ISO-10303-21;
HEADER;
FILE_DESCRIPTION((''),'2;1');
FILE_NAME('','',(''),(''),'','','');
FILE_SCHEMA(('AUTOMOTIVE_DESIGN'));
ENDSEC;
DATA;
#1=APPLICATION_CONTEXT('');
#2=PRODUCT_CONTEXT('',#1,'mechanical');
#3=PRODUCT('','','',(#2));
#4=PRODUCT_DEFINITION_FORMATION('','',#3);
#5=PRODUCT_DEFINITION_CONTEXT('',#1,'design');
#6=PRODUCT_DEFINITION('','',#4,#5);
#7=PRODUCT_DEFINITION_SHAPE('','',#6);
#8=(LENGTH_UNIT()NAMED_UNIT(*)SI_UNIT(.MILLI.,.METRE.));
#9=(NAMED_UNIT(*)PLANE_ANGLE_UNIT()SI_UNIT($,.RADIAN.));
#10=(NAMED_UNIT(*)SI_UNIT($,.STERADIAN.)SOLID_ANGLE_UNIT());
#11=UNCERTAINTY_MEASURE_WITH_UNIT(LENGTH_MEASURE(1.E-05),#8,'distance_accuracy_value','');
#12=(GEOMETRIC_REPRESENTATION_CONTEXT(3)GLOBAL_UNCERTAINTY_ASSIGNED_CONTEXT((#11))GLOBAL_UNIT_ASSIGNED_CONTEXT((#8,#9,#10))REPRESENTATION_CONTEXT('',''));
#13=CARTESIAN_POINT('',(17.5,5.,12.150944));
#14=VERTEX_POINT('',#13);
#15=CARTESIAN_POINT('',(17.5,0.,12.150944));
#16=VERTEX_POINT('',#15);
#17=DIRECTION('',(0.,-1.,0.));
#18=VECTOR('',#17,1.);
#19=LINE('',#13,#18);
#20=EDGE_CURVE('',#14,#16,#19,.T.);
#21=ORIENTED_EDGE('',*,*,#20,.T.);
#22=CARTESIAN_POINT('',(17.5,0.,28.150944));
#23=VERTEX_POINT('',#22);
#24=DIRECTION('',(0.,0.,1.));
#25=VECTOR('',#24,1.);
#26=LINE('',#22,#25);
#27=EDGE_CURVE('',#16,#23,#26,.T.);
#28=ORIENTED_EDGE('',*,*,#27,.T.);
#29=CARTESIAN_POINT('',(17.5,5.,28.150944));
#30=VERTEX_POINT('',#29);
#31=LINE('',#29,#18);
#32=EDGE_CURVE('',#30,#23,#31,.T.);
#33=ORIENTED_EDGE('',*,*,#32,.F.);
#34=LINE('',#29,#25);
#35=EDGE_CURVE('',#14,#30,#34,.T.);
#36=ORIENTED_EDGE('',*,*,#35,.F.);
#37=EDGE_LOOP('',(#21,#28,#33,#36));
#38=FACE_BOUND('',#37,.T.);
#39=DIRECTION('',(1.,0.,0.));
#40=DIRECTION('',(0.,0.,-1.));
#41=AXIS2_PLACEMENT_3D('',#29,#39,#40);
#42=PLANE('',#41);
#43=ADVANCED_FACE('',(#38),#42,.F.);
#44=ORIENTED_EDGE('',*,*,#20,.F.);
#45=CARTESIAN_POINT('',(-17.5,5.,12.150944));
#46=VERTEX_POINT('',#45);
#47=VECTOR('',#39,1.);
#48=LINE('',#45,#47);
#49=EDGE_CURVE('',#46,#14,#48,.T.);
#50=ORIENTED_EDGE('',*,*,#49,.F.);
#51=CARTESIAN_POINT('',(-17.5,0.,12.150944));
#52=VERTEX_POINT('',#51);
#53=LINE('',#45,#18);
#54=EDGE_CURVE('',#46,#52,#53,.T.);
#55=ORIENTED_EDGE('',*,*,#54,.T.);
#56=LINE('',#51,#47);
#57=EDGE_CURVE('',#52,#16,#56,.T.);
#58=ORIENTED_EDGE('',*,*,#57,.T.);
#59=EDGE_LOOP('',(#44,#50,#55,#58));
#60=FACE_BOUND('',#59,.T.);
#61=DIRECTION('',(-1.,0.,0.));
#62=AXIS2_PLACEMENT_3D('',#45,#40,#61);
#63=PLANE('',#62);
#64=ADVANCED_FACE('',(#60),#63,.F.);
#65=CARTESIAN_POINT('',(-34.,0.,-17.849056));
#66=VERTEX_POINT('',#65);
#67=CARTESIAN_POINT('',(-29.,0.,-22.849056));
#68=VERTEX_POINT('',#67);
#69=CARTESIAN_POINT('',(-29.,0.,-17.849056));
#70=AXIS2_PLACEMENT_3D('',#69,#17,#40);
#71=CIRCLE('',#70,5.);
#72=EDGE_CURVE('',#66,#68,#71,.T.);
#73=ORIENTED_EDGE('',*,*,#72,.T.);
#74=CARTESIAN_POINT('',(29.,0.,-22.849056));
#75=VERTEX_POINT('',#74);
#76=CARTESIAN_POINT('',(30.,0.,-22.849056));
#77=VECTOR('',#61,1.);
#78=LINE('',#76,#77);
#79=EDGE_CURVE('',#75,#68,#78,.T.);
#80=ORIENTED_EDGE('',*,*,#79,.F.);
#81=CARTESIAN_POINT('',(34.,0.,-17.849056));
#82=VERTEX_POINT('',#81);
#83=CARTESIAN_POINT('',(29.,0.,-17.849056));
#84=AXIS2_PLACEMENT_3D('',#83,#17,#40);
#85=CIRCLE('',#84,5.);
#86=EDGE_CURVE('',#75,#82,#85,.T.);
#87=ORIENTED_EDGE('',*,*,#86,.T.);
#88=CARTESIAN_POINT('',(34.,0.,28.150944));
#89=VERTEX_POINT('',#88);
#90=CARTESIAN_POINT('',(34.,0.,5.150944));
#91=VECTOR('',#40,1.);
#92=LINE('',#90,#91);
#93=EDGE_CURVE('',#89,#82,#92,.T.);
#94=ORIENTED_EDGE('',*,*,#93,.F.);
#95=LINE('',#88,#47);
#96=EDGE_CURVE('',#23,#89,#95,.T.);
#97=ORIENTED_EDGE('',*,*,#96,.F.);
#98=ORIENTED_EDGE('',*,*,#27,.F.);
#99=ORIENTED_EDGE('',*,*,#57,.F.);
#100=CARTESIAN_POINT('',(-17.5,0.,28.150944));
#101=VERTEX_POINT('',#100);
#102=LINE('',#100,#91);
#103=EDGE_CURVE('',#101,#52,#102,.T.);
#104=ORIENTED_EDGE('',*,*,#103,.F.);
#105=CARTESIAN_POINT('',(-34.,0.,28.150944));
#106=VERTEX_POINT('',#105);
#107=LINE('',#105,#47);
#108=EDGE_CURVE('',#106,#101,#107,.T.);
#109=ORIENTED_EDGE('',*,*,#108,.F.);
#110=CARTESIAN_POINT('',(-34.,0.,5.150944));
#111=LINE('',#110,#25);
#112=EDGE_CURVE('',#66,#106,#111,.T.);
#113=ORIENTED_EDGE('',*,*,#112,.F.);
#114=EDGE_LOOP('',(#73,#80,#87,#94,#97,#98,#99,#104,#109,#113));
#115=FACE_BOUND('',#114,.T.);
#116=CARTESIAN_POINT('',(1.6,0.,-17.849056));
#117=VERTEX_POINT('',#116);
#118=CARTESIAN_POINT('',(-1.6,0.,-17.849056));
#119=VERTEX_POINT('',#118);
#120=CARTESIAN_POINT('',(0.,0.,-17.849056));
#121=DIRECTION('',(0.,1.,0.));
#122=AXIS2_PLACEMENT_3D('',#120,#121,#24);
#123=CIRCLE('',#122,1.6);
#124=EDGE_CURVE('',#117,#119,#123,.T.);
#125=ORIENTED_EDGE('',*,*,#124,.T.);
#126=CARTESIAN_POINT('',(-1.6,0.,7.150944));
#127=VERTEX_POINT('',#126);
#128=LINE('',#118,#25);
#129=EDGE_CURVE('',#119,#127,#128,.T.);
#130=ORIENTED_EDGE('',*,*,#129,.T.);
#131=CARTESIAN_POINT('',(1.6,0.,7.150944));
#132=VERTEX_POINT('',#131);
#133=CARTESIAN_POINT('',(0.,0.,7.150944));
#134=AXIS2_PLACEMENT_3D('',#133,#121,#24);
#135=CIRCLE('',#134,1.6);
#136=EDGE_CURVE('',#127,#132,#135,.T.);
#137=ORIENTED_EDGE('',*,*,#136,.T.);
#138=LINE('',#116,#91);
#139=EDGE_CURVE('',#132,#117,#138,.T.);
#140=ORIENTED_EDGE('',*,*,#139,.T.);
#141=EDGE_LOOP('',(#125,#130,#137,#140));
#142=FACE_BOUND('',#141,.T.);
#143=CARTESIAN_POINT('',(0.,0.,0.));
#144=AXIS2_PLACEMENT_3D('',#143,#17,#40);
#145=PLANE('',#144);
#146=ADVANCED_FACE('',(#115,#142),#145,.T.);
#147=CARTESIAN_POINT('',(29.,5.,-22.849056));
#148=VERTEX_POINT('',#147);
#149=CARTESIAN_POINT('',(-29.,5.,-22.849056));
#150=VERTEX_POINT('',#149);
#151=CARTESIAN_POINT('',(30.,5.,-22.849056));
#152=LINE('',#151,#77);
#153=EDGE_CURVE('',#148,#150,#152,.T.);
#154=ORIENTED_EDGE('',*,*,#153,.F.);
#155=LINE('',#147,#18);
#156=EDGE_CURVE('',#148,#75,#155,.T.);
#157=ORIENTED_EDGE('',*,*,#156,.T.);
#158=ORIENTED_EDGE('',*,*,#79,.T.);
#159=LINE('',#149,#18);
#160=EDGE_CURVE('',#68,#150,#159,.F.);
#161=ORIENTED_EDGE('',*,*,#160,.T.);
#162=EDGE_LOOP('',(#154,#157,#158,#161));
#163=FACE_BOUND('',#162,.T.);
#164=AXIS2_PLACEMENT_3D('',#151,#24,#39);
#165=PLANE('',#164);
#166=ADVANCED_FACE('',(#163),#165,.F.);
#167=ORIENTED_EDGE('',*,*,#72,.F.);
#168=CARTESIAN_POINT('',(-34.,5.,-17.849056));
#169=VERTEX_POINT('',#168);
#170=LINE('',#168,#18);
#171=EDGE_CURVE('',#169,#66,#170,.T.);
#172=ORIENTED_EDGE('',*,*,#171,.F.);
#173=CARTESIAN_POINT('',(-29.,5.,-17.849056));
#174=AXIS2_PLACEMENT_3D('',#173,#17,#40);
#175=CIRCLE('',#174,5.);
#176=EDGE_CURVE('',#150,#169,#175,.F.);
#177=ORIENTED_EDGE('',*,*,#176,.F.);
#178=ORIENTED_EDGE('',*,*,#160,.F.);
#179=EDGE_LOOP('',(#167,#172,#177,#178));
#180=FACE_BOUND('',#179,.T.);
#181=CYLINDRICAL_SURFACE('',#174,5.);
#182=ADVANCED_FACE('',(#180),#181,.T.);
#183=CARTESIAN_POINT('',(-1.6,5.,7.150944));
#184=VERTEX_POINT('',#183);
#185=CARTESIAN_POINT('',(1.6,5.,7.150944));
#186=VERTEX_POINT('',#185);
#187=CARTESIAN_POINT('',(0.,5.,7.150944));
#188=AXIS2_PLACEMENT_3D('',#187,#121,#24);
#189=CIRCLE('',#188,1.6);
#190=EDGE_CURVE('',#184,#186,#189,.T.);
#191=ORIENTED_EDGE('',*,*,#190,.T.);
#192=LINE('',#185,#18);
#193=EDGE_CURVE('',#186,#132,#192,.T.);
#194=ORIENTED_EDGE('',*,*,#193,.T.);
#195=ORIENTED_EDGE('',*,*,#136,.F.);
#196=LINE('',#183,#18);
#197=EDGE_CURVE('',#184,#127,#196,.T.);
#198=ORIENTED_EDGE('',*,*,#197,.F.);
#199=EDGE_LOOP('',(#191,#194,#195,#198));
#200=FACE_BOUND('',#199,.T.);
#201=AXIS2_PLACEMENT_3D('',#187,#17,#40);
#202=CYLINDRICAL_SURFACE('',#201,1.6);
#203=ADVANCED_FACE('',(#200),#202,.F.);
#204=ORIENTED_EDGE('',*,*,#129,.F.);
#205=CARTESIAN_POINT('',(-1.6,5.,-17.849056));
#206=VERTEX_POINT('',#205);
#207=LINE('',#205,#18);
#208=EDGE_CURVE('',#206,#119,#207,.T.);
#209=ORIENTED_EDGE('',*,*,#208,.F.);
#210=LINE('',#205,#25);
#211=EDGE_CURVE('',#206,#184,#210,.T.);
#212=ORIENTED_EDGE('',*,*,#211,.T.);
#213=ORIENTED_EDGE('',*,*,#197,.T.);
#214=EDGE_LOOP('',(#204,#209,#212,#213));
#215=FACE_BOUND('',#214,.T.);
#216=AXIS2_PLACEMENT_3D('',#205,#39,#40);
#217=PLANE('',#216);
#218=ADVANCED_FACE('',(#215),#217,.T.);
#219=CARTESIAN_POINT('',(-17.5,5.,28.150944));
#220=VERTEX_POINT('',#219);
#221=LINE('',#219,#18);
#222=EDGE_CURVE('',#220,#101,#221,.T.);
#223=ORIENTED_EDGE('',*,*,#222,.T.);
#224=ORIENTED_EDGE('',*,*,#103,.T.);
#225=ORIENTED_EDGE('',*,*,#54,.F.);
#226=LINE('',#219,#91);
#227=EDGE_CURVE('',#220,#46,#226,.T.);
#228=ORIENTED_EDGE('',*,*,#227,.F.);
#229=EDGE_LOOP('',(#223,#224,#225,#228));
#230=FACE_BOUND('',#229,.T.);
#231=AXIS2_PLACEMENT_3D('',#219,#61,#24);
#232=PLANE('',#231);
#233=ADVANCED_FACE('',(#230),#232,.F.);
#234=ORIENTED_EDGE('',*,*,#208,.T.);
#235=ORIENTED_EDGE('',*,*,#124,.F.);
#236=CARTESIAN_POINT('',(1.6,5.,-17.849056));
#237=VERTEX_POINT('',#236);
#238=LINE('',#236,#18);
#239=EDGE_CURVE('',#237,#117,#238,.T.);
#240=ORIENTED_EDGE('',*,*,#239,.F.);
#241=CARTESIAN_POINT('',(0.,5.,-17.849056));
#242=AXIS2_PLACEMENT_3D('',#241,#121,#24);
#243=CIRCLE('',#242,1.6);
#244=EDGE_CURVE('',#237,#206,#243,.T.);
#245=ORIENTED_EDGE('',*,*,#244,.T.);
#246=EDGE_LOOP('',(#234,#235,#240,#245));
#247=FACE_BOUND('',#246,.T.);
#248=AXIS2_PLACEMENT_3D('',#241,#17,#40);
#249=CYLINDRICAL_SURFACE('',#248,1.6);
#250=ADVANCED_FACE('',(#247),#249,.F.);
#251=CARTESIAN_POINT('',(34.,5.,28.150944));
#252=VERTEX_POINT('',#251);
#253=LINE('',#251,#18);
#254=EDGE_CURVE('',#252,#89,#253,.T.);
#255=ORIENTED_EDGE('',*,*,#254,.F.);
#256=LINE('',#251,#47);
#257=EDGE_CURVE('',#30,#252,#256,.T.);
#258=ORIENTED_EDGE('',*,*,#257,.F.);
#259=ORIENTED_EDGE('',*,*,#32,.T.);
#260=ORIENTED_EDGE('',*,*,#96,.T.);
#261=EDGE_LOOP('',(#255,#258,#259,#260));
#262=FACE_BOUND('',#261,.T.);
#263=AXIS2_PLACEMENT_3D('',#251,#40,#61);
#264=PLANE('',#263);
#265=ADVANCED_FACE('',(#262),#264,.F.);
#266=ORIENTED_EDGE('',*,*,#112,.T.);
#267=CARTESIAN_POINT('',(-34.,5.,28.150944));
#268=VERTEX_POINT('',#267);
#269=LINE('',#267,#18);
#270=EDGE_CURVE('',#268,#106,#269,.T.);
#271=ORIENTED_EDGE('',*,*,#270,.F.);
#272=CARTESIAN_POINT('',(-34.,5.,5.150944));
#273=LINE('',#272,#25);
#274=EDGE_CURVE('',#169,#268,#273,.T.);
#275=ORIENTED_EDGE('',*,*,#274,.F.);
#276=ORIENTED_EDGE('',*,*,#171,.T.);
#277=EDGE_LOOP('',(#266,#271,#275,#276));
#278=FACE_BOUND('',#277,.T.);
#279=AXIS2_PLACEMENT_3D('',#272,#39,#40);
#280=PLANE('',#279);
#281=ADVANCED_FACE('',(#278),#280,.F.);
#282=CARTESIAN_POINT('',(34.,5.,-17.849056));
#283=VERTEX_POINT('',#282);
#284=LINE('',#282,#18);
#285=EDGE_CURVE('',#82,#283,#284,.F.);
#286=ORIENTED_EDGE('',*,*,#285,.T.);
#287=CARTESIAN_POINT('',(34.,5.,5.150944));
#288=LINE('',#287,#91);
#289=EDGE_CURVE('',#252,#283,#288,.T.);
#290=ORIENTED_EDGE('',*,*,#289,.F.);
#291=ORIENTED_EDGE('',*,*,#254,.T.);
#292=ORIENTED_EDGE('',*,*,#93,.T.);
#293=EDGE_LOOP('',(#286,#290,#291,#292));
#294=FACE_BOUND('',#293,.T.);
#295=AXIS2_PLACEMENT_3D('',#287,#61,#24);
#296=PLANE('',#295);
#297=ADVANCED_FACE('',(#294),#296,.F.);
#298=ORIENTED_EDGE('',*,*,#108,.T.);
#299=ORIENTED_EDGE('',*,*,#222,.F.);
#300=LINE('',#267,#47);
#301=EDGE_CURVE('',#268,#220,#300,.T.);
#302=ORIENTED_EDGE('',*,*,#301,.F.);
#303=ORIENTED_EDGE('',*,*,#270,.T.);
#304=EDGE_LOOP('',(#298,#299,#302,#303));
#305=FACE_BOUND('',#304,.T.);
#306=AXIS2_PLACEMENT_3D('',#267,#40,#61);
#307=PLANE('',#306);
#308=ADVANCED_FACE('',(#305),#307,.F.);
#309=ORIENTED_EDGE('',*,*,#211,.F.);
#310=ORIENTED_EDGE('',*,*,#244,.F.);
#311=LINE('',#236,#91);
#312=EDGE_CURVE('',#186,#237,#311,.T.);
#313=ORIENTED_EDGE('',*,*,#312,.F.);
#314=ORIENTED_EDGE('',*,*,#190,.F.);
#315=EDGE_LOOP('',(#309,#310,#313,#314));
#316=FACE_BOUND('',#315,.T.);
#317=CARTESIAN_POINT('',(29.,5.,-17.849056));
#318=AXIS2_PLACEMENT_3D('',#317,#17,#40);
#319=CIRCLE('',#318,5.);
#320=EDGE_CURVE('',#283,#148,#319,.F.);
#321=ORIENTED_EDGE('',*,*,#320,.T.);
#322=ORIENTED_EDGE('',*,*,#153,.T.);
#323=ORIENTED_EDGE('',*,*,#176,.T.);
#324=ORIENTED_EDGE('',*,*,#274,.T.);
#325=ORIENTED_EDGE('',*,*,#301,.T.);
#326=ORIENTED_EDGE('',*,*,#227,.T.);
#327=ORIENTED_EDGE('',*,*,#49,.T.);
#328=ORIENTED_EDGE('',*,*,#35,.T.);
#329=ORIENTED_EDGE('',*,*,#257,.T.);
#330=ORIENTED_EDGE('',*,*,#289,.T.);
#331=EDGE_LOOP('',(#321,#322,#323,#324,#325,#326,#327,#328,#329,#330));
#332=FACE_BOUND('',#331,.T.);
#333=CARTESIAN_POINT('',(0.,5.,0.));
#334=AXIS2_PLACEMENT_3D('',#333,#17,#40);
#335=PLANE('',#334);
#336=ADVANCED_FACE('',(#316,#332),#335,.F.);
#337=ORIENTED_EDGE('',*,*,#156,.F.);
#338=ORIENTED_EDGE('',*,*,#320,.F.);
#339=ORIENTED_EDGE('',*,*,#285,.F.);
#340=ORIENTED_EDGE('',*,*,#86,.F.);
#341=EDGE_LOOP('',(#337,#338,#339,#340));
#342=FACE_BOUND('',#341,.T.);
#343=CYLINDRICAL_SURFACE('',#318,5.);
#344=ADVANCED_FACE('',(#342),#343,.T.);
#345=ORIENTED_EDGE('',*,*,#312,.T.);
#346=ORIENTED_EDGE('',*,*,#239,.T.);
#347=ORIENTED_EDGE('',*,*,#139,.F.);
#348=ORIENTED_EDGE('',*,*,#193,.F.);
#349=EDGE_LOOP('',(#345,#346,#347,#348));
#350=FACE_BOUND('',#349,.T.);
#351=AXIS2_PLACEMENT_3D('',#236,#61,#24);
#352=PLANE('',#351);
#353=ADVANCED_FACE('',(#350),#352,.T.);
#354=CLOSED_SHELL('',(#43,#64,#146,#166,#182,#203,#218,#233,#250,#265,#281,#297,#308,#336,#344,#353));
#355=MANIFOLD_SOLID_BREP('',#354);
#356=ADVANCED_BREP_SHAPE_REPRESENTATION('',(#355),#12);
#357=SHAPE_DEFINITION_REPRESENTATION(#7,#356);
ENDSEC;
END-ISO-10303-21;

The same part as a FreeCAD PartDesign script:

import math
import FreeCAD as App
import Part
import Sketcher
from FreeCAD import Vector


def edges_at(feature, points):
    """Names of the edges that pass closest to the given points."""
    edges = feature.Shape.Edges
    near = lambda p: min(range(len(edges)), key=lambda i: edges[i].distToShape(Part.Vertex(*p))[0])
    return sorted({f"Edge{near(p) + 1}" for p in points})

doc = App.newDocument("Part")
body = doc.addObject("PartDesign::Body", "Body")

# Sketch on XZ plane
sketch1 = body.newObject("Sketcher::SketchObject", "Sketch")
sketch1.AttachmentSupport = (doc.getObject("XZ_Plane"), [""])
sketch1.MapMode = "FlatFace"
sketch1.addGeometry([
    Part.LineSegment(Vector(30, -22.8, 0), Vector(-30, -22.8, 0)),  # 0
    Part.LineSegment(Vector(-30, -22.8, 0), Vector(-30, 5.2, 0)),  # 1
    Part.LineSegment(Vector(-30, 5.2, 0), Vector(-34, 5.2, 0)),  # 2
    Part.LineSegment(Vector(-34, 5.2, 0), Vector(-34, 28.2, 0)),  # 3
    Part.LineSegment(Vector(-34, 28.2, 0), Vector(-17.5, 28.2, 0)),  # 4
    Part.LineSegment(Vector(-17.5, 28.2, 0), Vector(-17.5, 12.2, 0)),  # 5
    Part.LineSegment(Vector(-17.5, 12.2, 0), Vector(17.5, 12.2, 0)),  # 6
    Part.LineSegment(Vector(17.5, 12.2, 0), Vector(17.5, 28.2, 0)),  # 7
    Part.LineSegment(Vector(17.5, 28.2, 0), Vector(34, 28.2, 0)),  # 8
    Part.LineSegment(Vector(34, 28.2, 0), Vector(34, 5.2, 0)),  # 9
    Part.LineSegment(Vector(34, 5.2, 0), Vector(30, 5.2, 0)),  # 10
    Part.LineSegment(Vector(30, 5.2, 0), Vector(30, -22.8, 0)),  # 11
    Part.ArcOfCircle(Part.Circle(Vector(0, -17.8, 0), Vector(0, 0, 1), 1.6), math.radians(180), math.radians(360)),  # 12
    Part.LineSegment(Vector(1.6, -17.8, 0), Vector(1.6, 7.2, 0)),  # 13
    Part.ArcOfCircle(Part.Circle(Vector(0, 7.2, 0), Vector(0, 0, 1), 1.6), math.radians(0), math.radians(180)),  # 14
    Part.LineSegment(Vector(-1.6, 7.2, 0), Vector(-1.6, -17.8, 0)),  # 15
], False)
sketch1.addConstraint([
    Sketcher.Constraint("Coincident", 0, 2, 1, 1),
    Sketcher.Constraint("Coincident", 1, 2, 2, 1),
    Sketcher.Constraint("Coincident", 2, 2, 3, 1),
    Sketcher.Constraint("Coincident", 3, 2, 4, 1),
    Sketcher.Constraint("Coincident", 4, 2, 5, 1),
    Sketcher.Constraint("Coincident", 5, 2, 6, 1),
    Sketcher.Constraint("Coincident", 6, 2, 7, 1),
    Sketcher.Constraint("Coincident", 7, 2, 8, 1),
    Sketcher.Constraint("Coincident", 8, 2, 9, 1),
    Sketcher.Constraint("Coincident", 9, 2, 10, 1),
    Sketcher.Constraint("Coincident", 10, 2, 11, 1),
    Sketcher.Constraint("Coincident", 11, 2, 0, 1),
    Sketcher.Constraint("Tangent", 12, 2, 13, 1),
    Sketcher.Constraint("Tangent", 13, 2, 14, 1),
    Sketcher.Constraint("Tangent", 14, 2, 15, 1),
    Sketcher.Constraint("Tangent", 15, 2, 12, 1),
    Sketcher.Constraint("Horizontal", 0),
    Sketcher.Constraint("Vertical", 1),
    Sketcher.Constraint("Horizontal", 2),
    Sketcher.Constraint("Vertical", 3),
    Sketcher.Constraint("Horizontal", 4),
    Sketcher.Constraint("Vertical", 5),
    Sketcher.Constraint("Horizontal", 6),
    Sketcher.Constraint("Vertical", 7),
    Sketcher.Constraint("Horizontal", 8),
    Sketcher.Constraint("Vertical", 9),
    Sketcher.Constraint("Horizontal", 10),
    Sketcher.Constraint("Vertical", 11),
    Sketcher.Constraint("Vertical", 13),
    Sketcher.Constraint("Vertical", 15),
    Sketcher.Constraint("Symmetric", 4, 2, 7, 2, -2),
    Sketcher.Constraint("Symmetric", 2, 2, 9, 2, -2),
    Sketcher.Constraint("PointOnObject", 12, 3, -2),
    Sketcher.Constraint("Equal", 2, 10),
    Sketcher.Constraint("Radius", 12, 1.6),
    Sketcher.Constraint("DistanceX", 0, 2, 0, 1, 60.0),
    Sketcher.Constraint("DistanceX", 2, 2, 2, 1, 4.0),
    Sketcher.Constraint("DistanceX", 6, 1, 6, 2, 35.0),
    Sketcher.Constraint("DistanceY", 1, 1, 1, 2, 28.0),
    Sketcher.Constraint("DistanceY", 3, 1, 3, 2, 23.0),
    Sketcher.Constraint("DistanceY", 5, 2, 5, 1, 16.0),
    Sketcher.Constraint("DistanceY", 13, 1, 13, 2, 25.0),
    Sketcher.Constraint("DistanceY", 0, 2, 12, 3, 5.0),
    Sketcher.Constraint("DistanceY", 12, 3, -1, 1, 17.849056),
])
pad1 = body.newObject("PartDesign::Pad", "Pad")
pad1.Profile = sketch1
pad1.Length = 5
pad1.Reversed = True

# Sketch on XZ plane
sketch2 = body.newObject("Sketcher::SketchObject", "Sketch001")
sketch2.AttachmentSupport = (doc.getObject("XZ_Plane"), [""])
sketch2.MapMode = "FlatFace"
sketch2.addGeometry([
    Part.LineSegment(Vector(-34, -22.8, 0), Vector(-34, 5.2, 0)),  # 0
    Part.LineSegment(Vector(-34, 5.2, 0), Vector(-30, 5.2, 0)),  # 1
    Part.LineSegment(Vector(-30, 5.2, 0), Vector(-30, -22.8, 0)),  # 2
    Part.LineSegment(Vector(-30, -22.8, 0), Vector(-34, -22.8, 0)),  # 3
    Part.LineSegment(Vector(30, -22.8, 0), Vector(30, 5.2, 0)),  # 4
    Part.LineSegment(Vector(30, 5.2, 0), Vector(34, 5.2, 0)),  # 5
    Part.LineSegment(Vector(34, 5.2, 0), Vector(34, -22.8, 0)),  # 6
    Part.LineSegment(Vector(34, -22.8, 0), Vector(30, -22.8, 0)),  # 7
], False)
sketch2.addConstraint([
    Sketcher.Constraint("Coincident", 0, 2, 1, 1),
    Sketcher.Constraint("Coincident", 1, 2, 2, 1),
    Sketcher.Constraint("Coincident", 2, 2, 3, 1),
    Sketcher.Constraint("Coincident", 3, 2, 0, 1),
    Sketcher.Constraint("Coincident", 4, 2, 5, 1),
    Sketcher.Constraint("Coincident", 5, 2, 6, 1),
    Sketcher.Constraint("Coincident", 6, 2, 7, 1),
    Sketcher.Constraint("Coincident", 7, 2, 4, 1),
    Sketcher.Constraint("Vertical", 0),
    Sketcher.Constraint("Horizontal", 1),
    Sketcher.Constraint("Vertical", 2),
    Sketcher.Constraint("Horizontal", 3),
    Sketcher.Constraint("Vertical", 4),
    Sketcher.Constraint("Horizontal", 5),
    Sketcher.Constraint("Vertical", 6),
    Sketcher.Constraint("Horizontal", 7),
    Sketcher.Constraint("Symmetric", 1, 2, 4, 2, -2),
    Sketcher.Constraint("Symmetric", 3, 2, 6, 2, -2),
    Sketcher.Constraint("DistanceX", 1, 1, 1, 2, 4.0),
    Sketcher.Constraint("DistanceY", 0, 1, 0, 2, 28.0),
    Sketcher.Constraint("DistanceX", 0, 2, -1, 1, 34.0),
    Sketcher.Constraint("DistanceY", -1, 1, 0, 2, 5.150944),
])
pad2 = body.newObject("PartDesign::Pad", "Pad001")
pad2.Profile = sketch2
pad2.Length = 5
pad2.Reversed = True
doc.recompute()

fillet = body.newObject("PartDesign::Fillet", "Fillet")
fillet.Base = (pad2, edges_at(pad2, [(-34, 2.5, -22.849), (34, 2.5, -22.849)]))
fillet.Radius = 5

doc.recompute()
